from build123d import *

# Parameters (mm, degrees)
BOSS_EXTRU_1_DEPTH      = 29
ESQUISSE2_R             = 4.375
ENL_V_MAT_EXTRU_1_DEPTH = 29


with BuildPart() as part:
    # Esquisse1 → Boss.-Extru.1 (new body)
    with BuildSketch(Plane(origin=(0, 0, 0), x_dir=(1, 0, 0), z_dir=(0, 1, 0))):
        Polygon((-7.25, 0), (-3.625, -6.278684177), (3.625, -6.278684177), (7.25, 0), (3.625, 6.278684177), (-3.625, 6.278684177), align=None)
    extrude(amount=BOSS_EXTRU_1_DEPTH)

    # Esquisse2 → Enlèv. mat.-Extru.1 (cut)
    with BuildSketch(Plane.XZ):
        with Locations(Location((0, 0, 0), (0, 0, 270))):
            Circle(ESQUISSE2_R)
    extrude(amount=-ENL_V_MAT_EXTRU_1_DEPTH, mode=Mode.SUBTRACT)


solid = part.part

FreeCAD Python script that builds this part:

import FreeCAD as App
import Part
import Sketcher
Q = App.Units.Quantity


def add_polygon(sketch, points):
    """Adds a closed chain of lines whose ends are joined by coincident constraints."""
    first, n = sketch.GeometryCount, len(points)
    for a, b in zip(points, points[1:] + points[:1]):
        sketch.addGeometry(Part.LineSegment(App.Vector(*a, 0), App.Vector(*b, 0)), False)
    for i in range(n):
        sketch.addConstraint(Sketcher.Constraint("Coincident", first + i, 2, first + (i + 1) % n, 1))

doc = App.newDocument("Part")
body = doc.addObject("PartDesign::Body", "Body")

sketch1 = doc.addObject("Sketcher::SketchObject", "Sketch")
body.addObject(sketch1)
sketch1.AttachmentSupport = (doc.XZ_Plane, [""])
sketch1.MapMode = "FlatFace"
add_polygon(sketch1, [(-7.25, 0), (-3.625, 6.278684), (3.625, 6.278684), (7.25, 0), (3.625, -6.278684), (-3.625, -6.278684)])
sketch1.addConstraint([
    Sketcher.Constraint("Horizontal", 1),
    Sketcher.Constraint("Horizontal", 4),
    Sketcher.Constraint("Symmetric", 0, 2, 3, 2, -1, 1),
    Sketcher.Constraint("Symmetric", 2, 2, 5, 2, -1, 1),
    Sketcher.Constraint("PointOnObject", 2, 2, -1),
    Sketcher.Constraint("Parallel", 2, 5),
    Sketcher.Constraint("Vertical", 1, 2, 3, 2),
    Sketcher.Constraint("Angle", 0, Q("60 deg")),
    Sketcher.Constraint("DistanceX", 1, 1, 1, 2, 7.25),
    Sketcher.Constraint("DistanceX", 5, 2, 2, 2, 14.5),
])
pad1 = doc.addObject("PartDesign::Pad", "Pad")
body.addObject(pad1)
pad1.Profile = sketch1
pad1.Length = 29
pad1.Reversed = True

sketch2 = doc.addObject("Sketcher::SketchObject", "Sketch001")
body.addObject(sketch2)
sketch2.AttachmentSupport = (doc.XZ_Plane, [""])
sketch2.MapMode = "FlatFace"
sketch2.addGeometry(Part.Circle(App.Vector(0, 0, 0), App.Vector(0, 0, 1), 4.375), False)
sketch2.addConstraint([
    Sketcher.Constraint("Coincident", 0, 3, -1, 1),
    Sketcher.Constraint("Diameter", 0, 8.75),
])
pocket1 = doc.addObject("PartDesign::Pocket", "Pocket")
body.addObject(pocket1)
pocket1.Profile = sketch2
pocket1.Length = 29

doc.recompute()
